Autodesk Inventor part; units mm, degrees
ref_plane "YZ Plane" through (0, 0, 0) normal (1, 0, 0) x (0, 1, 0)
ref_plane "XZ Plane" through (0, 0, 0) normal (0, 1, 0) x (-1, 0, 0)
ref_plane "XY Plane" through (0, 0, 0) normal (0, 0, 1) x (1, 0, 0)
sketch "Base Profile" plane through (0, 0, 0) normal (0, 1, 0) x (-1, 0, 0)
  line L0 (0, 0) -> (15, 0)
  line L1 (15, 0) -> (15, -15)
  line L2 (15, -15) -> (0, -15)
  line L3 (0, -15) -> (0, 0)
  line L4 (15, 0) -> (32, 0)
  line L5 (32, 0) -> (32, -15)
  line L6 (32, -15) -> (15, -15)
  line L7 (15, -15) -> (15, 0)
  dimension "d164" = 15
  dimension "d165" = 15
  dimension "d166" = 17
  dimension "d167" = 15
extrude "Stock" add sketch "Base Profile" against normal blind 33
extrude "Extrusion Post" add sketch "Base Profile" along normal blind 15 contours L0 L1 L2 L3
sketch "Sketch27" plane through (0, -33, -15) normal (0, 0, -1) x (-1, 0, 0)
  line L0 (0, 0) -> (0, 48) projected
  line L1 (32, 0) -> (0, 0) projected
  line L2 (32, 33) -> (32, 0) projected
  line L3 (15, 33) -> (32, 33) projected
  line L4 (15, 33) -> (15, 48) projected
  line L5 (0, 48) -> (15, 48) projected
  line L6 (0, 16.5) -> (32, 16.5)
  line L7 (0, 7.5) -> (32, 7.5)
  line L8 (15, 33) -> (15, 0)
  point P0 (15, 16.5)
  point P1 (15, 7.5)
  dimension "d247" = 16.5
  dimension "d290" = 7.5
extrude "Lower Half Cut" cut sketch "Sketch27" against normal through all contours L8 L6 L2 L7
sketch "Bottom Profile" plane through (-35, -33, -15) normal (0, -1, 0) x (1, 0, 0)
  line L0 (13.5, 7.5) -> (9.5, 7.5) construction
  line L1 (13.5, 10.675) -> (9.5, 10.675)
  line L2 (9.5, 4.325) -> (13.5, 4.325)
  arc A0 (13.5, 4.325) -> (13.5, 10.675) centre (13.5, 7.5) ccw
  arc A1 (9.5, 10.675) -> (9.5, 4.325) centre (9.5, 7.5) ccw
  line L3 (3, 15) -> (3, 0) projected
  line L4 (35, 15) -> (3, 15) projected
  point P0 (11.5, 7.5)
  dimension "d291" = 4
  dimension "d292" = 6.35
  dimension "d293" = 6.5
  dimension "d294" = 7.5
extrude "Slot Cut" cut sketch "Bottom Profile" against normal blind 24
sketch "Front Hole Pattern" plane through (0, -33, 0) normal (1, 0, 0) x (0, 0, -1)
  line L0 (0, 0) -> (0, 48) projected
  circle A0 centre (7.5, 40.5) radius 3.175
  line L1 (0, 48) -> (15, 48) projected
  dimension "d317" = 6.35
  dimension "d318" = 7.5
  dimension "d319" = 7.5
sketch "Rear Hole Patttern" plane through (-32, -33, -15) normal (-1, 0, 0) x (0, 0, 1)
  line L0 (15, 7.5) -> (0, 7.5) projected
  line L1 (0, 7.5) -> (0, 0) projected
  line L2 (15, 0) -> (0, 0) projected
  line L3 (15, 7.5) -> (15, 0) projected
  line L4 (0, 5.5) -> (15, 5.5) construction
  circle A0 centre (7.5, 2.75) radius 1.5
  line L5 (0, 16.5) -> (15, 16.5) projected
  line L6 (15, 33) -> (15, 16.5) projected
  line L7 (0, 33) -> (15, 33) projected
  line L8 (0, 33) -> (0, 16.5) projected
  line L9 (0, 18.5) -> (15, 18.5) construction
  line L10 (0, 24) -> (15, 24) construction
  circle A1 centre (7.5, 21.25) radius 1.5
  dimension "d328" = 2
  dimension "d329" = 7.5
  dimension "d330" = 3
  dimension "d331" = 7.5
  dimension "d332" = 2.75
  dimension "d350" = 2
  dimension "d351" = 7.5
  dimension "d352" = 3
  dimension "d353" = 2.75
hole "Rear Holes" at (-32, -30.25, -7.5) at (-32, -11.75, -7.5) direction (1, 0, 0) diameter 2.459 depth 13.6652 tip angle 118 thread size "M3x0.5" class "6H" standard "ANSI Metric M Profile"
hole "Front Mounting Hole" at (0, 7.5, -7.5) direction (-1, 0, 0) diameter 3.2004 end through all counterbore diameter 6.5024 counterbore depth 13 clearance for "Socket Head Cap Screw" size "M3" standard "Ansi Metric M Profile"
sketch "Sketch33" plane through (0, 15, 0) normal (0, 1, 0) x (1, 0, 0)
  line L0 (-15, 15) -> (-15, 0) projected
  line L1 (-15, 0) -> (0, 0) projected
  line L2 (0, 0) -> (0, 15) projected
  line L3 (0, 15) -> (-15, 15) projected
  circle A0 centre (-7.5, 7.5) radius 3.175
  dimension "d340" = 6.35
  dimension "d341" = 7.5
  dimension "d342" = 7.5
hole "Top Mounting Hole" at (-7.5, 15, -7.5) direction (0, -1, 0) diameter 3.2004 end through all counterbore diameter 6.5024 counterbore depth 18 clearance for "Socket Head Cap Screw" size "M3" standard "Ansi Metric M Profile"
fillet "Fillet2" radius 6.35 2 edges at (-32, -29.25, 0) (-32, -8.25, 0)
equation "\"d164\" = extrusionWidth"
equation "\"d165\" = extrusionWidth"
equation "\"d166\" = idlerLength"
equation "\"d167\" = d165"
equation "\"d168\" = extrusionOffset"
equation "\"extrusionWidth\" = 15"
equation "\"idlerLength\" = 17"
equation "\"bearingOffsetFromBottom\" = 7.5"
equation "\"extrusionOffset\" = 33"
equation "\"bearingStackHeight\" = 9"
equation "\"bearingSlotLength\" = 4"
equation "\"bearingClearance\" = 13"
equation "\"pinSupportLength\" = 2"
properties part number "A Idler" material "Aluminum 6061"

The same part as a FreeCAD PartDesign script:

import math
import FreeCAD as App
import Part
import Sketcher

V = App.Vector
Q = App.Units.Quantity


def edges_at(feature, points):
    """Names of the edges that pass closest to the given points."""
    edges = feature.Shape.Edges
    near = lambda p: min(range(len(edges)), key=lambda i: edges[i].distToShape(Part.Vertex(*p))[0])
    return sorted({f"Edge{near(p) + 1}" for p in points})

doc = App.newDocument("Part")
body = doc.addObject("PartDesign::Body", "Body")

# Sketch on XZ plane
sketch1 = doc.addObject("Sketcher::SketchObject", "Sketch")
body.addObject(sketch1)
sketch1.AttachmentSupport = (doc.XZ_Plane, [""])
sketch1.MapMode = "FlatFace"
sketch1.addGeometry([
    Part.LineSegment(V(0, 0, 0), V(0, -15, 0)),
    Part.LineSegment(V(0, -15, 0), V(-32, -15, 0)),
    Part.LineSegment(V(-32, -15, 0), V(-32, 0, 0)),
    Part.LineSegment(V(-32, 0, 0), V(0, 0, 0)),
], False)
sketch1.addConstraint([
    Sketcher.Constraint("Coincident", 0, 2, 1, 1),
    Sketcher.Constraint("Coincident", 1, 2, 2, 1),
    Sketcher.Constraint("Coincident", 2, 2, 3, 1),
    Sketcher.Constraint("Coincident", 3, 2, 0, 1),
    Sketcher.Constraint("Vertical", 0),
    Sketcher.Constraint("Horizontal", 1),
    Sketcher.Constraint("Vertical", 2),
    Sketcher.Constraint("Horizontal", 3),
    Sketcher.Constraint("Coincident", 3, 2, -1, 1),
    Sketcher.Constraint("DistanceY", 0, 2, 0, 1, Q("15 mm")),
    Sketcher.Constraint("DistanceX", 1, 2, 1, 1, Q("32 mm")),
])
pad1 = doc.addObject("PartDesign::Pad", "Pad")
body.addObject(pad1)
pad1.Profile = sketch1
pad1.Length = 33

# Sketch on XZ plane
sketch2 = doc.addObject("Sketcher::SketchObject", "Sketch001")
body.addObject(sketch2)
sketch2.AttachmentSupport = (doc.XZ_Plane, [""])
sketch2.MapMode = "FlatFace"
sketch2.addGeometry([
    Part.LineSegment(V(-15, 0, 0), V(0, 0, 0)),
    Part.LineSegment(V(0, 0, 0), V(0, -15, 0)),
    Part.LineSegment(V(0, -15, 0), V(-15, -15, 0)),
    Part.LineSegment(V(-15, -15, 0), V(-15, 0, 0)),
], False)
sketch2.addConstraint([
    Sketcher.Constraint("Coincident", 0, 2, 1, 1),
    Sketcher.Constraint("Coincident", 1, 2, 2, 1),
    Sketcher.Constraint("Coincident", 2, 2, 3, 1),
    Sketcher.Constraint("Coincident", 3, 2, 0, 1),
    Sketcher.Constraint("Horizontal", 0),
    Sketcher.Constraint("Vertical", 1),
    Sketcher.Constraint("Horizontal", 2),
    Sketcher.Constraint("Vertical", 3),
    Sketcher.Constraint("Coincident", 0, 2, -1, 1),
    Sketcher.Constraint("Equal", 2, 1),
    Sketcher.Constraint("DistanceX", 0, 1, 0, 2, Q("15 mm")),
])
pad2 = doc.addObject("PartDesign::Pad", "Pad001")
body.addObject(pad2)
pad2.Profile = sketch2
pad2.Length = 15
pad2.Reversed = True

# Sketch on XY plane
sketch3 = doc.addObject("Sketcher::SketchObject", "Sketch002")
body.addObject(sketch3)
sketch3.AttachmentSupport = (doc.XY_Plane, [""])
sketch3.MapMode = "FlatFace"
sketch3.AttachmentOffset = App.Placement(V(0, 0, -15), App.Rotation())
sketch3.addGeometry([
    Part.LineSegment(V(-15, -16.5, 0), V(-15, -25.5, 0)),
    Part.LineSegment(V(-15, -25.5, 0), V(-32, -25.5, 0)),
    Part.LineSegment(V(-32, -25.5, 0), V(-32, -16.5, 0)),
    Part.LineSegment(V(-32, -16.5, 0), V(-15, -16.5, 0)),
], False)
sketch3.addConstraint([
    Sketcher.Constraint("Coincident", 0, 2, 1, 1),
    Sketcher.Constraint("Coincident", 1, 2, 2, 1),
    Sketcher.Constraint("Coincident", 2, 2, 3, 1),
    Sketcher.Constraint("Coincident", 3, 2, 0, 1),
    Sketcher.Constraint("Vertical", 0),
    Sketcher.Constraint("Horizontal", 1),
    Sketcher.Constraint("Vertical", 2),
    Sketcher.Constraint("Horizontal", 3),
    Sketcher.Constraint("DistanceY", 2, 2, -1, 1, Q("16.5 mm")),
    Sketcher.Constraint("DistanceX", 1, 2, 1, 1, Q("17 mm")),
    Sketcher.Constraint("DistanceY", 0, 2, 0, 1, Q("9 mm")),
    Sketcher.Constraint("DistanceX", 0, 2, -1, 1, Q("15 mm")),
])
pocket1 = doc.addObject("PartDesign::Pocket", "Pocket")
body.addObject(pocket1)
pocket1.Profile = sketch3
pocket1.Type = "ThroughAll"
pocket1.Reversed = True

# Sketch on XZ plane
sketch4 = doc.addObject("Sketcher::SketchObject", "Sketch003")
body.addObject(sketch4)
sketch4.AttachmentSupport = (doc.XZ_Plane, [""])
sketch4.MapMode = "FlatFace"
sketch4.AttachmentOffset = App.Placement(V(0, 0, 33), App.Rotation())
sketch4.addGeometry([
    Part.ArcOfCircle(Part.Circle(V(-21.5, -7.5, 0), V(0, 0, 1), 3.175), math.radians(-90), math.radians(90)),
    Part.LineSegment(V(-21.5, -4.325, 0), V(-25.5, -4.325, 0)),
    Part.ArcOfCircle(Part.Circle(V(-25.5, -7.5, 0), V(0, 0, 1), 3.175), math.radians(90), math.radians(270)),
    Part.LineSegment(V(-25.5, -10.675, 0), V(-21.5, -10.675, 0)),
], False)
sketch4.addConstraint([
    Sketcher.Constraint("Tangent", 0, 2, 1, 1),
    Sketcher.Constraint("Tangent", 1, 2, 2, 1),
    Sketcher.Constraint("Tangent", 2, 2, 3, 1),
    Sketcher.Constraint("Tangent", 3, 2, 0, 1),
    Sketcher.Constraint("Horizontal", 1),
    Sketcher.Constraint("Horizontal", 3),
    Sketcher.Constraint("DistanceX", 1, 2, 1, 1, Q("4 mm")),
    Sketcher.Constraint("Radius", 0, Q("3.175 mm")),
    Sketcher.Constraint("DistanceY", 0, 3, -1, 1, Q("7.5 mm")),
    Sketcher.Constraint("DistanceX", 0, 3, -1, 1, Q("21.5 mm")),
])
pocket2 = doc.addObject("PartDesign::Pocket", "Pocket001")
body.addObject(pocket2)
pocket2.Profile = sketch4
pocket2.Length = 24

# Sketch on YZ plane
sketch5 = doc.addObject("Sketcher::SketchObject", "Sketch004")
body.addObject(sketch5)
sketch5.AttachmentSupport = (doc.YZ_Plane, [""])
sketch5.MapMode = "FlatFace"
sketch5.AttachmentOffset = App.Placement(V(0, 0, -32), App.Rotation())
sketch5.addGeometry([
    Part.Circle(V(-30.25, -7.5, 0), V(0, 0, 1), 1.2295),
    Part.Circle(V(-11.75, -7.5, 0), V(0, 0, 1), 1.2295),
], False)
sketch5.addConstraint([
    Sketcher.Constraint("Equal", 0, 1),
    Sketcher.Constraint("Horizontal", 0, 3, 1, 3),
    Sketcher.Constraint("Diameter", 0, Q("2.459 mm")),
    Sketcher.Constraint("DistanceY", 0, 3, -1, 1, Q("7.5 mm")),
    Sketcher.Constraint("DistanceX", 0, 3, 1, 3, Q("18.5 mm")),
    Sketcher.Constraint("DistanceX", 0, 3, -1, 1, Q("30.25 mm")),
])
doc.recompute()
hole = doc.addObject("PartDesign::Hole", "Hole")
body.addObject(hole)
hole.Profile = sketch5
hole.ThreadType = "None"
hole.Diameter = 2.459
hole.DepthType = "Dimension"
hole.Depth = 13.6652
hole.DrillPoint = "Angled"
hole.DrillPointAngle = 118
hole.Reversed = True

# Sketch on YZ plane
sketch6 = doc.addObject("Sketcher::SketchObject", "Sketch005")
body.addObject(sketch6)
sketch6.AttachmentSupport = (doc.YZ_Plane, [""])
sketch6.MapMode = "FlatFace"
sketch6.addGeometry(Part.Circle(V(7.5, -7.5, 0), V(0, 0, 1), 1.6002), False)
sketch6.addConstraint([
    Sketcher.Constraint("Diameter", 0, Q("3.2004 mm")),
    Sketcher.Constraint("DistanceX", -1, 1, 0, 3, Q("7.5 mm")),
    Sketcher.Constraint("DistanceY", 0, 3, -1, 1, Q("7.5 mm")),
])
doc.recompute()
hole2 = doc.addObject("PartDesign::Hole", "Hole001")
body.addObject(hole2)
hole2.Profile = sketch6
hole2.ThreadType = "None"
hole2.Diameter = 3.2004
hole2.DepthType = "ThroughAll"
hole2.HoleCutType = "Counterbore"
hole2.HoleCutDiameter = 6.5024
hole2.HoleCutDepth = 13

# Sketch on XZ plane
sketch7 = doc.addObject("Sketcher::SketchObject", "Sketch006")
body.addObject(sketch7)
sketch7.AttachmentSupport = (doc.XZ_Plane, [""])
sketch7.MapMode = "FlatFace"
sketch7.AttachmentOffset = App.Placement(V(0, 0, -15), App.Rotation())
sketch7.addGeometry(Part.Circle(V(-7.5, -7.5, 0), V(0, 0, 1), 1.6002), False)
sketch7.addConstraint([
    Sketcher.Constraint("Diameter", 0, Q("3.2004 mm")),
    Sketcher.Constraint("DistanceX", 0, 3, -1, 1, Q("7.5 mm")),
    Sketcher.Constraint("DistanceY", 0, 3, -1, 1, Q("7.5 mm")),
])
doc.recompute()
hole3 = doc.addObject("PartDesign::Hole", "Hole002")
body.addObject(hole3)
hole3.Profile = sketch7
hole3.ThreadType = "None"
hole3.Diameter = 3.2004
hole3.DepthType = "ThroughAll"
hole3.HoleCutType = "Counterbore"
hole3.HoleCutDiameter = 6.5024
hole3.HoleCutDepth = 18
hole3.Reversed = True
doc.recompute()

fillet = doc.addObject("PartDesign::Fillet", "Fillet")
body.addObject(fillet)
fillet.Base = (hole3, edges_at(hole3, [(-32, -29.25, 0), (-32, -8.25, 0)]))
fillet.Radius = 6.35

doc.recompute()
